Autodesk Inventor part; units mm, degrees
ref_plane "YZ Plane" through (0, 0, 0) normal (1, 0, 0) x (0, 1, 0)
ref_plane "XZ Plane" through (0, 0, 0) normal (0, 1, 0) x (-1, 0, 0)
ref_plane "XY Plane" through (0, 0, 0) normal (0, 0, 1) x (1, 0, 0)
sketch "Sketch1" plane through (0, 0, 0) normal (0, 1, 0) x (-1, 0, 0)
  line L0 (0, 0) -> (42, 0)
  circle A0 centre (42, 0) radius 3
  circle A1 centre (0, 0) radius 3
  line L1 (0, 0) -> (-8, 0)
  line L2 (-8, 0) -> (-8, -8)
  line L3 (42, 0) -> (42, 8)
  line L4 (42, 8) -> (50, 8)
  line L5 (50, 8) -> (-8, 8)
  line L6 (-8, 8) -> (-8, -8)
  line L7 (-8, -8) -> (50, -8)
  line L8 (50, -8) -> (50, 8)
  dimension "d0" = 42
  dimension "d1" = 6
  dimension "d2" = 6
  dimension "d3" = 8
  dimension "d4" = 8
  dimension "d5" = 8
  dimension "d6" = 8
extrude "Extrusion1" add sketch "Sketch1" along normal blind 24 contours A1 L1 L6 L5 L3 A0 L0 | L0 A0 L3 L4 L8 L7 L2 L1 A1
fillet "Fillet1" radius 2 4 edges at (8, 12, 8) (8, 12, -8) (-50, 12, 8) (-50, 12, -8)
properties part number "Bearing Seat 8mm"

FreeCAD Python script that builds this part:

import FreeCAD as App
import Part
import Sketcher

V = App.Vector
Q = App.Units.Quantity


def edges_at(feature, points):
    """Names of the edges that pass closest to the given points."""
    edges = feature.Shape.Edges
    near = lambda p: min(range(len(edges)), key=lambda i: edges[i].distToShape(Part.Vertex(*p))[0])
    return sorted({f"Edge{near(p) + 1}" for p in points})

doc = App.newDocument("Part")
body = doc.addObject("PartDesign::Body", "Body")

# Sketch on XZ plane
sketch1 = doc.addObject("Sketcher::SketchObject", "Sketch")
body.addObject(sketch1)
sketch1.AttachmentSupport = (doc.XZ_Plane, [""])
sketch1.MapMode = "FlatFace"
sketch1.addGeometry([
    Part.LineSegment(V(8, 8, 0), V(8, -8, 0)),  # 0
    Part.LineSegment(V(8, -8, 0), V(-50, -8, 0)),  # 1
    Part.LineSegment(V(-50, -8, 0), V(-50, 8, 0)),  # 2
    Part.LineSegment(V(-50, 8, 0), V(8, 8, 0)),  # 3
    Part.Circle(V(0, 0, 0), V(0, 0, 1), 3),  # 4
    Part.Circle(V(-42, 0, 0), V(0, 0, 1), 3),  # 5
], False)
sketch1.addConstraint([
    Sketcher.Constraint("Coincident", 0, 2, 1, 1),
    Sketcher.Constraint("Coincident", 1, 2, 2, 1),
    Sketcher.Constraint("Coincident", 2, 2, 3, 1),
    Sketcher.Constraint("Coincident", 3, 2, 0, 1),
    Sketcher.Constraint("Vertical", 0),
    Sketcher.Constraint("Horizontal", 1),
    Sketcher.Constraint("Vertical", 2),
    Sketcher.Constraint("Horizontal", 3),
    Sketcher.Constraint("Coincident", 4, 3, -1, 1),
    Sketcher.Constraint("Equal", 4, 5),
    Sketcher.Constraint("PointOnObject", 5, 3, -1),
    Sketcher.Constraint("Diameter", 4, Q("6 mm")),
    Sketcher.Constraint("DistanceX", 5, 3, -1, 1, Q("42 mm")),
    Sketcher.Constraint("DistanceX", -1, 1, 0, 2, Q("8 mm")),
    Sketcher.Constraint("DistanceY", 0, 2, -1, 1, Q("8 mm")),
    Sketcher.Constraint("DistanceY", -1, 1, 2, 2, Q("8 mm")),
    Sketcher.Constraint("DistanceX", 1, 2, 5, 3, Q("8 mm")),
])
pad1 = doc.addObject("PartDesign::Pad", "Pad")
body.addObject(pad1)
pad1.Profile = sketch1
pad1.Length = 24
pad1.Reversed = True
doc.recompute()

fillet = doc.addObject("PartDesign::Fillet", "Fillet")
body.addObject(fillet)
fillet.Base = (pad1, edges_at(pad1, [
    (8, 12, 8),
    (8, 12, -8),
    (-50, 12, 8),
    (-50, 12, -8),
]))
fillet.Radius = 2

doc.recompute()
